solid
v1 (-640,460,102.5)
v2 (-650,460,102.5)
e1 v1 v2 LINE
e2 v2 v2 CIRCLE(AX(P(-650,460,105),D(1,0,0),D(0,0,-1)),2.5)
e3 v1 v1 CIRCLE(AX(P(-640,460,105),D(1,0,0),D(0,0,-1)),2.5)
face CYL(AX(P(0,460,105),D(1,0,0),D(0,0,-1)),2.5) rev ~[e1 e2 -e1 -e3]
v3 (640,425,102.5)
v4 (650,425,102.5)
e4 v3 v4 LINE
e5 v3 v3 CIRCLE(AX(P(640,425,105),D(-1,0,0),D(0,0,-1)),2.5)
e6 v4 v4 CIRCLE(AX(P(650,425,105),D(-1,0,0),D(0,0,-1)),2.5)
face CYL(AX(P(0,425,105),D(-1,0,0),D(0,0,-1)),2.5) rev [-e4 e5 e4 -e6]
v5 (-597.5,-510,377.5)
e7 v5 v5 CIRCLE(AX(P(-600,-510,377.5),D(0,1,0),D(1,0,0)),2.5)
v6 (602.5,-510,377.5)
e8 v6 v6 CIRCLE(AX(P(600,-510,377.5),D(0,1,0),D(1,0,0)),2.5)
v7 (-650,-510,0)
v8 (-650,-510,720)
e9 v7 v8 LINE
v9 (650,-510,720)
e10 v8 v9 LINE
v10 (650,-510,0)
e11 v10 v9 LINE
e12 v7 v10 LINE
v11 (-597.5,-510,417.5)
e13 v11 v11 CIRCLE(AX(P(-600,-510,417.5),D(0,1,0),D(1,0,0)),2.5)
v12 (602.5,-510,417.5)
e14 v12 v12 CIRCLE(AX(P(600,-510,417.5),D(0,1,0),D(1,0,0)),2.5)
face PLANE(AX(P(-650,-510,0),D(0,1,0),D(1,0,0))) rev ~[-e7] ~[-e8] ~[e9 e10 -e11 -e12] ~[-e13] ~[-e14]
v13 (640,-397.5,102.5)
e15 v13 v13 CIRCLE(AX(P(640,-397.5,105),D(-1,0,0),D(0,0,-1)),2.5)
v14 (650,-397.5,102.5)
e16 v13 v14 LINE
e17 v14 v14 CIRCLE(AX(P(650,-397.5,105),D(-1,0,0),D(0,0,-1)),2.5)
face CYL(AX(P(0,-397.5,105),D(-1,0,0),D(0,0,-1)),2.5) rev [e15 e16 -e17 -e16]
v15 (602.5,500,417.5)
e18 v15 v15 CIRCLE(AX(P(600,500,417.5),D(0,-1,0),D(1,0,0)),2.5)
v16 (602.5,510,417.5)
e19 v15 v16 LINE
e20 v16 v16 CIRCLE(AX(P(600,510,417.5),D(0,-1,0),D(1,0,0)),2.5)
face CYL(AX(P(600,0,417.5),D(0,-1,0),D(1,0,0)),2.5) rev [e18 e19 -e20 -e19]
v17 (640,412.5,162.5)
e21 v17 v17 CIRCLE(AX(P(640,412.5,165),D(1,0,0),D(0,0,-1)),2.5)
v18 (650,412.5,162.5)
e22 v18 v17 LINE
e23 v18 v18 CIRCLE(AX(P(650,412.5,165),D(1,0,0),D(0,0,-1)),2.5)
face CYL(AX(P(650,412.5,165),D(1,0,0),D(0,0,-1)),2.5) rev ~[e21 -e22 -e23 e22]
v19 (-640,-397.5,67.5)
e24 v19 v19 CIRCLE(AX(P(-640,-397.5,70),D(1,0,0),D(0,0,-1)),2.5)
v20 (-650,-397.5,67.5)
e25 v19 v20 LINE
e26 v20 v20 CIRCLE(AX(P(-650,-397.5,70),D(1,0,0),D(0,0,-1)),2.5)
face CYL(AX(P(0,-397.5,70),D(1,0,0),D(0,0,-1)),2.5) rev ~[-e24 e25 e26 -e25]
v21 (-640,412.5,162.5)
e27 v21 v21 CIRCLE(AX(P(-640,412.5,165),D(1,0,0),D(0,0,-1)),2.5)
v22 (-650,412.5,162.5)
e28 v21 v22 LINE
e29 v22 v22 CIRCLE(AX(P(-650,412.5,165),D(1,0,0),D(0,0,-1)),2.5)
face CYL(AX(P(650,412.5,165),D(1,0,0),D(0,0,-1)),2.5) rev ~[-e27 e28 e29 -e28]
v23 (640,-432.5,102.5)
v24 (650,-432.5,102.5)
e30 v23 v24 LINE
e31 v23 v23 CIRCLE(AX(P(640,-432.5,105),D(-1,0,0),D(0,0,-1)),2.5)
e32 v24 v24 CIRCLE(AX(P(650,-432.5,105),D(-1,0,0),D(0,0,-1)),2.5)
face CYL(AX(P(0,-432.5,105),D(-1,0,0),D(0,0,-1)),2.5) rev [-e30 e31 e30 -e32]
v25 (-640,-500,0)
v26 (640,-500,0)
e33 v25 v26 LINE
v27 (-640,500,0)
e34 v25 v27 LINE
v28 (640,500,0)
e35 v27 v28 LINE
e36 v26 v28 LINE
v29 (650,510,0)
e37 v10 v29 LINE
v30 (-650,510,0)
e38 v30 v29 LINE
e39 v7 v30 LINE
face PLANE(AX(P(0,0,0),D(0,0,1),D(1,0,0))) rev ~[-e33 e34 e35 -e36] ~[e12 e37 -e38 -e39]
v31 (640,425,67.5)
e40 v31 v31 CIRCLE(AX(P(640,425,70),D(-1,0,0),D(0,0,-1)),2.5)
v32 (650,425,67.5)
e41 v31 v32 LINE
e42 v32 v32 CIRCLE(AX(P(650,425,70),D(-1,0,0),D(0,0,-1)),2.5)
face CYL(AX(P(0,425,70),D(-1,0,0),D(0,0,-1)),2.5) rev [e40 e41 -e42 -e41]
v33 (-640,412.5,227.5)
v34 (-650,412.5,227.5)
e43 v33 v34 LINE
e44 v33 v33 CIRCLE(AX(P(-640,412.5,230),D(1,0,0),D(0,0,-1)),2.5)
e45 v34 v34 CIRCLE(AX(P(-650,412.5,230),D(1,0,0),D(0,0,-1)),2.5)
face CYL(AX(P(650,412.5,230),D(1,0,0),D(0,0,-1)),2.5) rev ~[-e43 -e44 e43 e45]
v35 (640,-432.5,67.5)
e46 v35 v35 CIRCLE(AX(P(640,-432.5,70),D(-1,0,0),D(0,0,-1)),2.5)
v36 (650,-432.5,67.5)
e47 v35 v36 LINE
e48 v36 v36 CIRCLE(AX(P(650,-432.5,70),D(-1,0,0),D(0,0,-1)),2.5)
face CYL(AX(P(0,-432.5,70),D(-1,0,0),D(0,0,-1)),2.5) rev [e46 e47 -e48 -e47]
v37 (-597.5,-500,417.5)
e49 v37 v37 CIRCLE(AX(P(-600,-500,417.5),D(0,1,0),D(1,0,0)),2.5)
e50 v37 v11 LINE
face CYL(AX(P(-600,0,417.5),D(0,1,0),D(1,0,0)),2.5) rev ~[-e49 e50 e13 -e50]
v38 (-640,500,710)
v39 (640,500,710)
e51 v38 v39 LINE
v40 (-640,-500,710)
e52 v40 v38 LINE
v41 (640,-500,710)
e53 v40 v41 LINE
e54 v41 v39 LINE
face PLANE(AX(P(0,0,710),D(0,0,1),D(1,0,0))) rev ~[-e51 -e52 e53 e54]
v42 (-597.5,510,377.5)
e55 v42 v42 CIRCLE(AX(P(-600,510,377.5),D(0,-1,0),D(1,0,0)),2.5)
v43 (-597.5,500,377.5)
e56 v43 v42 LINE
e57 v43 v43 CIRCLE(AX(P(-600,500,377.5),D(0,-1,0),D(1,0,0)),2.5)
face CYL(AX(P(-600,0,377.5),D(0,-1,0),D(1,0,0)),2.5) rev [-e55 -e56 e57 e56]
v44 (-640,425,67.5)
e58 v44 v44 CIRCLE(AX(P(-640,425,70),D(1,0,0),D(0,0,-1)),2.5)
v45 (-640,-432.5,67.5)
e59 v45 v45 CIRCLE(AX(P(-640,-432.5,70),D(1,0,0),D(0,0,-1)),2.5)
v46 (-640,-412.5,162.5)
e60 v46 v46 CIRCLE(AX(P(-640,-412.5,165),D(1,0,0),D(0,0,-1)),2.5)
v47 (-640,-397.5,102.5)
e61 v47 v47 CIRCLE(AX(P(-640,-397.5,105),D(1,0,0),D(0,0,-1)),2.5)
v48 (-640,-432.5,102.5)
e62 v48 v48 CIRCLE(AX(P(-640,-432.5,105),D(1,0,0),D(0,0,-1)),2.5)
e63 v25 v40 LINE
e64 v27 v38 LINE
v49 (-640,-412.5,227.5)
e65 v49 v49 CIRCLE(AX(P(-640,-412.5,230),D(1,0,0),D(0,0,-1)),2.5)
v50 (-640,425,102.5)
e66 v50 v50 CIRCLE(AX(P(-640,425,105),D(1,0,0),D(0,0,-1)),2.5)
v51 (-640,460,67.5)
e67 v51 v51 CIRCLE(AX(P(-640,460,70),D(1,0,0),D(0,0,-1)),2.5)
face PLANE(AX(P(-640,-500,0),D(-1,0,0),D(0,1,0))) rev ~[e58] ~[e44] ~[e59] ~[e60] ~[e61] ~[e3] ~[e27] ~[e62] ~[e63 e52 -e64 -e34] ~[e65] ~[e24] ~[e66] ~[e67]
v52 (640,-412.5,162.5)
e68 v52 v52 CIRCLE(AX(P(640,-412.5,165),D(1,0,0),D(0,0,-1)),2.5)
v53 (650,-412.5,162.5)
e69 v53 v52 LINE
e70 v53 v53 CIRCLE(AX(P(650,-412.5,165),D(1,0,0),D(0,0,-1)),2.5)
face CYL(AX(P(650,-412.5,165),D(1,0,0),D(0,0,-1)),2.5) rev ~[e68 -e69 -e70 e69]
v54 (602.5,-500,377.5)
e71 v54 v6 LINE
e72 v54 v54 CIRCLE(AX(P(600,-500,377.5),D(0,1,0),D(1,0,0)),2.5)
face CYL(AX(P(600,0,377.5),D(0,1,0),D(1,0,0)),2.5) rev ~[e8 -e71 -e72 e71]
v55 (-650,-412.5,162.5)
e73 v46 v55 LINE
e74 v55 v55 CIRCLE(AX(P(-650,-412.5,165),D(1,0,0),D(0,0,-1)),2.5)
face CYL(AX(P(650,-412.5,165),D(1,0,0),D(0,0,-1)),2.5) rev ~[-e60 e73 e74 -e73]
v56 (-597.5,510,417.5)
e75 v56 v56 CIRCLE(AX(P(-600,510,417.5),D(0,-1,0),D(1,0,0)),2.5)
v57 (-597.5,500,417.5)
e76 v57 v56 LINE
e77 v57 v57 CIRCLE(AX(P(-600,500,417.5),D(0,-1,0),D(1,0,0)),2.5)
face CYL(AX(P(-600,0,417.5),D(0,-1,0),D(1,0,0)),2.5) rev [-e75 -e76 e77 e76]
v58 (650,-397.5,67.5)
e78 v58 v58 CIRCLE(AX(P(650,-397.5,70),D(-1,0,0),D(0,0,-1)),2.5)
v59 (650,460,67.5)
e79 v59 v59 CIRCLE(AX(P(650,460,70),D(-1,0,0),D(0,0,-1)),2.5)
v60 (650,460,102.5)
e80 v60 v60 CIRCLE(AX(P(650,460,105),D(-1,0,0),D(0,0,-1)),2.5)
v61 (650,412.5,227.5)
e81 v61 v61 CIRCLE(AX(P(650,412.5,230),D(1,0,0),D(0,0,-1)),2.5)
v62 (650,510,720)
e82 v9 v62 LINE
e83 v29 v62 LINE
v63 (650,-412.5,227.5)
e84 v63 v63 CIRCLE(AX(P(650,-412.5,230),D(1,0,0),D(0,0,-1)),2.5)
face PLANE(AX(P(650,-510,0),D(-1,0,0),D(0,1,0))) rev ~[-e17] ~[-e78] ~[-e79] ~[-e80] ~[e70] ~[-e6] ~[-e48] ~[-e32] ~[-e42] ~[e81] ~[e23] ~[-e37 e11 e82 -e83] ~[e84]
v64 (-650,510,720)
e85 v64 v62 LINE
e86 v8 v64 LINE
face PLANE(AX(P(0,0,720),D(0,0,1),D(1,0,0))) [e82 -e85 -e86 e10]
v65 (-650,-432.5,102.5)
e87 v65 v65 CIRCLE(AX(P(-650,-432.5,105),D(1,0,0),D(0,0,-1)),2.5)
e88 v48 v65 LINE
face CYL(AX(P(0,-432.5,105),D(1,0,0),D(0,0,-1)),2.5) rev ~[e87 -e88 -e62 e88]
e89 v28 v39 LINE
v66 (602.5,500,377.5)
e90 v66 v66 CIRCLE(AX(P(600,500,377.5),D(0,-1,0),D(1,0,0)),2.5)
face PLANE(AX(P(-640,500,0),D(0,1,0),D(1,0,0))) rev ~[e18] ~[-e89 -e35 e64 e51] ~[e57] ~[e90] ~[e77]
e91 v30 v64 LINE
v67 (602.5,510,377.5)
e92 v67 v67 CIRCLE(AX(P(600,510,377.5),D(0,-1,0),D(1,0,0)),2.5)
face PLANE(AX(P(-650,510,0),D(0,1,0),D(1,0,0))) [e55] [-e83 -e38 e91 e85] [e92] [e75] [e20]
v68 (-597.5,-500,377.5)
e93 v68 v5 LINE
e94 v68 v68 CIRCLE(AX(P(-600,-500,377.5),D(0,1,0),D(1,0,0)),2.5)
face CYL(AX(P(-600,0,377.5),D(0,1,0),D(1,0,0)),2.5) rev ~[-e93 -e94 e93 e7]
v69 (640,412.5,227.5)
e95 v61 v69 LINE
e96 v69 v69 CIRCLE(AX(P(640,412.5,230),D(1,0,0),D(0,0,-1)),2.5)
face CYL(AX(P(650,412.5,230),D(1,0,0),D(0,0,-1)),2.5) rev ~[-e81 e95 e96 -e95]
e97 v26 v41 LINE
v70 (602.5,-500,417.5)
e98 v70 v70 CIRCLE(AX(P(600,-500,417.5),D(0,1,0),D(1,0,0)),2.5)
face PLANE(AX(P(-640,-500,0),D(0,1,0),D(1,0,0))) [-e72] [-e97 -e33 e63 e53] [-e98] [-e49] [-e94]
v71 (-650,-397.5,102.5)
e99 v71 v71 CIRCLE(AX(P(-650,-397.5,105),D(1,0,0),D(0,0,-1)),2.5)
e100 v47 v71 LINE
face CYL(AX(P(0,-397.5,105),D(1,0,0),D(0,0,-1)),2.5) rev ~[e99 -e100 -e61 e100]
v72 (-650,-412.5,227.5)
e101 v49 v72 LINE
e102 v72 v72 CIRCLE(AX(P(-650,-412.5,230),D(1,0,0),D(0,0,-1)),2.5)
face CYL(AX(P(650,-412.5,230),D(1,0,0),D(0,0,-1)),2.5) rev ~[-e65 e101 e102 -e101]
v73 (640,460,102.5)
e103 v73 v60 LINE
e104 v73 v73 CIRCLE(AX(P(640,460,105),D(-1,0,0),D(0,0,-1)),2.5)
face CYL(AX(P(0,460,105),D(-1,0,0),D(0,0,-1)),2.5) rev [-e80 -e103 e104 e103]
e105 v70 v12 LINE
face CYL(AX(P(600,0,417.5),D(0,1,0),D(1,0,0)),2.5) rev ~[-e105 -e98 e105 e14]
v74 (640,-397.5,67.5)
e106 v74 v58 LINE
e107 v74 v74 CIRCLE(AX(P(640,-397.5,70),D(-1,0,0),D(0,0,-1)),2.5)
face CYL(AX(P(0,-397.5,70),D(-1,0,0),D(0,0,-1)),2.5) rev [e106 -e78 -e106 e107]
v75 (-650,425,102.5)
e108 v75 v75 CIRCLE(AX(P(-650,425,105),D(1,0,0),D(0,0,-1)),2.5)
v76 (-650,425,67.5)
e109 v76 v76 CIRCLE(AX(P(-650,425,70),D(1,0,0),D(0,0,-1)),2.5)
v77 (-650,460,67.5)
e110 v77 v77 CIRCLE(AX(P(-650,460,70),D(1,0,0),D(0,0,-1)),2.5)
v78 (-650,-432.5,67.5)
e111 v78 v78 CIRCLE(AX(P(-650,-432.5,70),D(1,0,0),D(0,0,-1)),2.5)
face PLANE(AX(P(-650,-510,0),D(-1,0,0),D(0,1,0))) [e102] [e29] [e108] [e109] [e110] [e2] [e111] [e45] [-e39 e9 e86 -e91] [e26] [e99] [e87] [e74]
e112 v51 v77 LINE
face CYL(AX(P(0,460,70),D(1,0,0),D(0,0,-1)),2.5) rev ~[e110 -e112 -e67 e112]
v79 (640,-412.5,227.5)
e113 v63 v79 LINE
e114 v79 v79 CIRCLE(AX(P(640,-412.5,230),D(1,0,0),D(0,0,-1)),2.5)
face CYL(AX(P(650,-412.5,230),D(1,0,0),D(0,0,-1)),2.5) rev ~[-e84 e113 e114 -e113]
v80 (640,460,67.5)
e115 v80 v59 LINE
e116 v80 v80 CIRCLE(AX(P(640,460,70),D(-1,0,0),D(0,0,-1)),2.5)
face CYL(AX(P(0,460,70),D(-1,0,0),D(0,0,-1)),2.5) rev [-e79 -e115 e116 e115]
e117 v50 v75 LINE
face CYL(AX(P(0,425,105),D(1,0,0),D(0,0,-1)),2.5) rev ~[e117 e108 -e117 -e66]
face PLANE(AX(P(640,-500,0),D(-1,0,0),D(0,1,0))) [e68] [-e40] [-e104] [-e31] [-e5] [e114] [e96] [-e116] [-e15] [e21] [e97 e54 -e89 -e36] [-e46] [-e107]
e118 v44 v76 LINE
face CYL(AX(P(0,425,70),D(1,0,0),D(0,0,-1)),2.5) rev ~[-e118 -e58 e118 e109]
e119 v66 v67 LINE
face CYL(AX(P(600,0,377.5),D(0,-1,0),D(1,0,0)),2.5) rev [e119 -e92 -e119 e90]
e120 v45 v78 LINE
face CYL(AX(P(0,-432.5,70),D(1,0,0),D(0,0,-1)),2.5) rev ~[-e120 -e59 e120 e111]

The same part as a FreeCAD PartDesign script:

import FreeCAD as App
import Part
import Sketcher
from FreeCAD import Vector

doc = App.newDocument("Part")
body = doc.addObject("PartDesign::Body", "Body")

# Sketch on XY plane
sketch1 = body.newObject("Sketcher::SketchObject", "Sketch")
sketch1.AttachmentSupport = (doc.getObject("XY_Plane"), [""])
sketch1.MapMode = "FlatFace"
sketch1.addGeometry(Part.LineSegment(Vector(-650, 510, 0), Vector(-650, -510, 0)), False)
sketch1.addGeometry(Part.LineSegment(Vector(-650, -510, 0), Vector(650, -510, 0)), False)
sketch1.addGeometry(Part.LineSegment(Vector(650, -510, 0), Vector(650, 510, 0)), False)
sketch1.addGeometry(Part.LineSegment(Vector(650, 510, 0), Vector(-650, 510, 0)), False)
sketch1.addConstraint(Sketcher.Constraint("Coincident", 0, 2, 1, 1))
sketch1.addConstraint(Sketcher.Constraint("Coincident", 1, 2, 2, 1))
sketch1.addConstraint(Sketcher.Constraint("Coincident", 2, 2, 3, 1))
sketch1.addConstraint(Sketcher.Constraint("Coincident", 3, 2, 0, 1))
sketch1.addConstraint(Sketcher.Constraint("Vertical", 0))
sketch1.addConstraint(Sketcher.Constraint("Horizontal", 1))
sketch1.addConstraint(Sketcher.Constraint("Vertical", 2))
sketch1.addConstraint(Sketcher.Constraint("Horizontal", 3))
sketch1.addConstraint(Sketcher.Constraint("Symmetric", 0, 2, 2, 2, -1, 1))
sketch1.addConstraint(Sketcher.Constraint("DistanceX", 1, 1, 1, 2, 1300.0))
sketch1.addConstraint(Sketcher.Constraint("DistanceY", 0, 2, 0, 1, 1020.0))
pad1 = body.newObject("PartDesign::Pad", "Pad")
pad1.Profile = sketch1
pad1.Length = 720

# Sketch on XY plane
sketch2 = body.newObject("Sketcher::SketchObject", "Sketch001")
sketch2.AttachmentSupport = (doc.getObject("XY_Plane"), [""])
sketch2.MapMode = "FlatFace"
sketch2.addGeometry(Part.LineSegment(Vector(-640, 500, 0), Vector(-640, -500, 0)), False)
sketch2.addGeometry(Part.LineSegment(Vector(-640, -500, 0), Vector(640, -500, 0)), False)
sketch2.addGeometry(Part.LineSegment(Vector(640, -500, 0), Vector(640, 500, 0)), False)
sketch2.addGeometry(Part.LineSegment(Vector(640, 500, 0), Vector(-640, 500, 0)), False)
sketch2.addConstraint(Sketcher.Constraint("Coincident", 0, 2, 1, 1))
sketch2.addConstraint(Sketcher.Constraint("Coincident", 1, 2, 2, 1))
sketch2.addConstraint(Sketcher.Constraint("Coincident", 2, 2, 3, 1))
sketch2.addConstraint(Sketcher.Constraint("Coincident", 3, 2, 0, 1))
sketch2.addConstraint(Sketcher.Constraint("Vertical", 0))
sketch2.addConstraint(Sketcher.Constraint("Horizontal", 1))
sketch2.addConstraint(Sketcher.Constraint("Vertical", 2))
sketch2.addConstraint(Sketcher.Constraint("Horizontal", 3))
sketch2.addConstraint(Sketcher.Constraint("Symmetric", 0, 2, 2, 2, -1, 1))
sketch2.addConstraint(Sketcher.Constraint("DistanceX", 1, 1, 1, 2, 1280.0))
sketch2.addConstraint(Sketcher.Constraint("DistanceY", 0, 2, 0, 1, 1000.0))
pocket1 = body.newObject("PartDesign::Pocket", "Pocket")
pocket1.Profile = sketch2
pocket1.Length = 710
pocket1.Reversed = True

# Sketch on YZ plane
sketch3 = body.newObject("Sketcher::SketchObject", "Sketch002")
sketch3.AttachmentSupport = (doc.getObject("YZ_Plane"), [""])
sketch3.MapMode = "FlatFace"
sketch3.addGeometry(Part.Circle(Vector(460, 70, 0), Vector(0, 0, 1), 2.5), False)
sketch3.addGeometry(Part.Circle(Vector(460, 105, 0), Vector(0, 0, 1), 2.5), False)
sketch3.addGeometry(Part.Circle(Vector(425, 105, 0), Vector(0, 0, 1), 2.5), False)
sketch3.addGeometry(Part.Circle(Vector(425, 70, 0), Vector(0, 0, 1), 2.5), False)
sketch3.addGeometry(Part.Circle(Vector(-432.5, 105, 0), Vector(0, 0, 1), 2.5), False)
sketch3.addGeometry(Part.Circle(Vector(-397.5, 105, 0), Vector(0, 0, 1), 2.5), False)
sketch3.addGeometry(Part.Circle(Vector(-397.5, 70, 0), Vector(0, 0, 1), 2.5), False)
sketch3.addGeometry(Part.Circle(Vector(-432.5, 70, 0), Vector(0, 0, 1), 2.5), False)
sketch3.addConstraint(Sketcher.Constraint("Equal", 0, 1))
sketch3.addConstraint(Sketcher.Constraint("Equal", 1, 2))
sketch3.addConstraint(Sketcher.Constraint("Equal", 2, 3))
sketch3.addConstraint(Sketcher.Constraint("Equal", 3, 4))
sketch3.addConstraint(Sketcher.Constraint("Equal", 4, 5))
sketch3.addConstraint(Sketcher.Constraint("Equal", 5, 6))
sketch3.addConstraint(Sketcher.Constraint("Equal", 6, 7))
sketch3.addConstraint(Sketcher.Constraint("Horizontal", 1, 3, 2, 3))
sketch3.addConstraint(Sketcher.Constraint("Horizontal", 0, 3, 3, 3))
sketch3.addConstraint(Sketcher.Constraint("Horizontal", 2, 3, 4, 3))
sketch3.addConstraint(Sketcher.Constraint("Horizontal", 4, 3, 5, 3))
sketch3.addConstraint(Sketcher.Constraint("Horizontal", 3, 3, 6, 3))
sketch3.addConstraint(Sketcher.Constraint("Horizontal", 6, 3, 7, 3))
sketch3.addConstraint(Sketcher.Constraint("Vertical", 0, 3, 1, 3))
sketch3.addConstraint(Sketcher.Constraint("Vertical", 2, 3, 3, 3))
sketch3.addConstraint(Sketcher.Constraint("Vertical", 5, 3, 6, 3))
sketch3.addConstraint(Sketcher.Constraint("Vertical", 4, 3, 7, 3))
sketch3.addConstraint(Sketcher.Constraint("Diameter", 0, 5.0))
sketch3.addConstraint(Sketcher.Constraint("DistanceX", -1, 1, 0, 3, 460.0))
sketch3.addConstraint(Sketcher.Constraint("DistanceY", -1, 1, 0, 3, 70.0))
sketch3.addConstraint(Sketcher.Constraint("DistanceY", -1, 1, 1, 3, 105.0))
sketch3.addConstraint(Sketcher.Constraint("DistanceX", -1, 1, 2, 3, 425.0))
sketch3.addConstraint(Sketcher.Constraint("DistanceX", 4, 3, 5, 3, 35.0))
sketch3.addConstraint(Sketcher.Constraint("DistanceX", 4, 3, -1, 1, 432.5))
pocket2 = body.newObject("PartDesign::Pocket", "Pocket001")
pocket2.Profile = sketch3
pocket2.Type = "ThroughAll"
pocket2.Midplane = True

# Sketch on YZ plane
sketch4 = body.newObject("Sketcher::SketchObject", "Sketch003")
sketch4.AttachmentSupport = (doc.getObject("YZ_Plane"), [""])
sketch4.MapMode = "FlatFace"
sketch4.AttachmentOffset = App.Placement(Vector(0, 0, 650), App.Rotation())
sketch4.addGeometry(Part.Circle(Vector(460, 105, 0), Vector(0, 0, 1), 2.5), False)
sketch4.addGeometry(Part.Circle(Vector(412.5, 230, 0), Vector(0, 0, 1), 2.5), False)
sketch4.addGeometry(Part.Circle(Vector(412.5, 165, 0), Vector(0, 0, 1), 2.5), False)
sketch4.addGeometry(Part.Circle(Vector(-412.5, 165, 0), Vector(0, 0, 1), 2.5), False)
sketch4.addGeometry(Part.Circle(Vector(-412.5, 230, 0), Vector(0, 0, 1), 2.5), False)
sketch4.addConstraint(Sketcher.Constraint("Equal", 0, 1))
sketch4.addConstraint(Sketcher.Constraint("Equal", 1, 2))
sketch4.addConstraint(Sketcher.Constraint("Equal", 2, 3))
sketch4.addConstraint(Sketcher.Constraint("Equal", 3, 4))
sketch4.addConstraint(Sketcher.Constraint("Symmetric", 2, 3, 3, 3, -2))
sketch4.addConstraint(Sketcher.Constraint("Symmetric", 1, 3, 4, 3, -2))
sketch4.addConstraint(Sketcher.Constraint("Vertical", 1, 3, 2, 3))
sketch4.addConstraint(Sketcher.Constraint("Diameter", 0, 5.0))
sketch4.addConstraint(Sketcher.Constraint("DistanceX", -1, 1, 0, 3, 460.0))
sketch4.addConstraint(Sketcher.Constraint("DistanceY", -1, 1, 0, 3, 105.0))
sketch4.addConstraint(Sketcher.Constraint("DistanceY", -1, 1, 1, 3, 230.0))
sketch4.addConstraint(Sketcher.Constraint("DistanceY", -1, 1, 2, 3, 165.0))
sketch4.addConstraint(Sketcher.Constraint("DistanceX", 3, 3, 2, 3, 825.0))
pocket3 = body.newObject("PartDesign::Pocket", "Pocket002")
pocket3.Profile = sketch4
pocket3.Length = 3326.5

# Sketch on XZ plane
sketch5 = body.newObject("Sketcher::SketchObject", "Sketch004")
sketch5.AttachmentSupport = (doc.getObject("XZ_Plane"), [""])
sketch5.MapMode = "FlatFace"
sketch5.addGeometry(Part.Circle(Vector(600, 417.5, 0), Vector(0, 0, 1), 2.5), False)
sketch5.addGeometry(Part.Circle(Vector(600, 377.5, 0), Vector(0, 0, 1), 2.5), False)
sketch5.addGeometry(Part.Circle(Vector(-600, 417.5, 0), Vector(0, 0, 1), 2.5), False)
sketch5.addGeometry(Part.Circle(Vector(-600, 377.5, 0), Vector(0, 0, 1), 2.5), False)
sketch5.addConstraint(Sketcher.Constraint("Equal", 0, 1))
sketch5.addConstraint(Sketcher.Constraint("Equal", 1, 2))
sketch5.addConstraint(Sketcher.Constraint("Equal", 2, 3))
sketch5.addConstraint(Sketcher.Constraint("Symmetric", 0, 3, 2, 3, -2))
sketch5.addConstraint(Sketcher.Constraint("Symmetric", 1, 3, 3, 3, -2))
sketch5.addConstraint(Sketcher.Constraint("Vertical", 0, 3, 1, 3))
sketch5.addConstraint(Sketcher.Constraint("Diameter", 0, 5.0))
sketch5.addConstraint(Sketcher.Constraint("DistanceX", -1, 1, 0, 3, 600.0))
sketch5.addConstraint(Sketcher.Constraint("DistanceY", 1, 3, 0, 3, 40.0))
sketch5.addConstraint(Sketcher.Constraint("DistanceY", -1, 1, 0, 3, 417.5))
pocket4 = body.newObject("PartDesign::Pocket", "Pocket003")
pocket4.Profile = sketch5
pocket4.Type = "ThroughAll"
pocket4.Midplane = True

doc.recompute()
